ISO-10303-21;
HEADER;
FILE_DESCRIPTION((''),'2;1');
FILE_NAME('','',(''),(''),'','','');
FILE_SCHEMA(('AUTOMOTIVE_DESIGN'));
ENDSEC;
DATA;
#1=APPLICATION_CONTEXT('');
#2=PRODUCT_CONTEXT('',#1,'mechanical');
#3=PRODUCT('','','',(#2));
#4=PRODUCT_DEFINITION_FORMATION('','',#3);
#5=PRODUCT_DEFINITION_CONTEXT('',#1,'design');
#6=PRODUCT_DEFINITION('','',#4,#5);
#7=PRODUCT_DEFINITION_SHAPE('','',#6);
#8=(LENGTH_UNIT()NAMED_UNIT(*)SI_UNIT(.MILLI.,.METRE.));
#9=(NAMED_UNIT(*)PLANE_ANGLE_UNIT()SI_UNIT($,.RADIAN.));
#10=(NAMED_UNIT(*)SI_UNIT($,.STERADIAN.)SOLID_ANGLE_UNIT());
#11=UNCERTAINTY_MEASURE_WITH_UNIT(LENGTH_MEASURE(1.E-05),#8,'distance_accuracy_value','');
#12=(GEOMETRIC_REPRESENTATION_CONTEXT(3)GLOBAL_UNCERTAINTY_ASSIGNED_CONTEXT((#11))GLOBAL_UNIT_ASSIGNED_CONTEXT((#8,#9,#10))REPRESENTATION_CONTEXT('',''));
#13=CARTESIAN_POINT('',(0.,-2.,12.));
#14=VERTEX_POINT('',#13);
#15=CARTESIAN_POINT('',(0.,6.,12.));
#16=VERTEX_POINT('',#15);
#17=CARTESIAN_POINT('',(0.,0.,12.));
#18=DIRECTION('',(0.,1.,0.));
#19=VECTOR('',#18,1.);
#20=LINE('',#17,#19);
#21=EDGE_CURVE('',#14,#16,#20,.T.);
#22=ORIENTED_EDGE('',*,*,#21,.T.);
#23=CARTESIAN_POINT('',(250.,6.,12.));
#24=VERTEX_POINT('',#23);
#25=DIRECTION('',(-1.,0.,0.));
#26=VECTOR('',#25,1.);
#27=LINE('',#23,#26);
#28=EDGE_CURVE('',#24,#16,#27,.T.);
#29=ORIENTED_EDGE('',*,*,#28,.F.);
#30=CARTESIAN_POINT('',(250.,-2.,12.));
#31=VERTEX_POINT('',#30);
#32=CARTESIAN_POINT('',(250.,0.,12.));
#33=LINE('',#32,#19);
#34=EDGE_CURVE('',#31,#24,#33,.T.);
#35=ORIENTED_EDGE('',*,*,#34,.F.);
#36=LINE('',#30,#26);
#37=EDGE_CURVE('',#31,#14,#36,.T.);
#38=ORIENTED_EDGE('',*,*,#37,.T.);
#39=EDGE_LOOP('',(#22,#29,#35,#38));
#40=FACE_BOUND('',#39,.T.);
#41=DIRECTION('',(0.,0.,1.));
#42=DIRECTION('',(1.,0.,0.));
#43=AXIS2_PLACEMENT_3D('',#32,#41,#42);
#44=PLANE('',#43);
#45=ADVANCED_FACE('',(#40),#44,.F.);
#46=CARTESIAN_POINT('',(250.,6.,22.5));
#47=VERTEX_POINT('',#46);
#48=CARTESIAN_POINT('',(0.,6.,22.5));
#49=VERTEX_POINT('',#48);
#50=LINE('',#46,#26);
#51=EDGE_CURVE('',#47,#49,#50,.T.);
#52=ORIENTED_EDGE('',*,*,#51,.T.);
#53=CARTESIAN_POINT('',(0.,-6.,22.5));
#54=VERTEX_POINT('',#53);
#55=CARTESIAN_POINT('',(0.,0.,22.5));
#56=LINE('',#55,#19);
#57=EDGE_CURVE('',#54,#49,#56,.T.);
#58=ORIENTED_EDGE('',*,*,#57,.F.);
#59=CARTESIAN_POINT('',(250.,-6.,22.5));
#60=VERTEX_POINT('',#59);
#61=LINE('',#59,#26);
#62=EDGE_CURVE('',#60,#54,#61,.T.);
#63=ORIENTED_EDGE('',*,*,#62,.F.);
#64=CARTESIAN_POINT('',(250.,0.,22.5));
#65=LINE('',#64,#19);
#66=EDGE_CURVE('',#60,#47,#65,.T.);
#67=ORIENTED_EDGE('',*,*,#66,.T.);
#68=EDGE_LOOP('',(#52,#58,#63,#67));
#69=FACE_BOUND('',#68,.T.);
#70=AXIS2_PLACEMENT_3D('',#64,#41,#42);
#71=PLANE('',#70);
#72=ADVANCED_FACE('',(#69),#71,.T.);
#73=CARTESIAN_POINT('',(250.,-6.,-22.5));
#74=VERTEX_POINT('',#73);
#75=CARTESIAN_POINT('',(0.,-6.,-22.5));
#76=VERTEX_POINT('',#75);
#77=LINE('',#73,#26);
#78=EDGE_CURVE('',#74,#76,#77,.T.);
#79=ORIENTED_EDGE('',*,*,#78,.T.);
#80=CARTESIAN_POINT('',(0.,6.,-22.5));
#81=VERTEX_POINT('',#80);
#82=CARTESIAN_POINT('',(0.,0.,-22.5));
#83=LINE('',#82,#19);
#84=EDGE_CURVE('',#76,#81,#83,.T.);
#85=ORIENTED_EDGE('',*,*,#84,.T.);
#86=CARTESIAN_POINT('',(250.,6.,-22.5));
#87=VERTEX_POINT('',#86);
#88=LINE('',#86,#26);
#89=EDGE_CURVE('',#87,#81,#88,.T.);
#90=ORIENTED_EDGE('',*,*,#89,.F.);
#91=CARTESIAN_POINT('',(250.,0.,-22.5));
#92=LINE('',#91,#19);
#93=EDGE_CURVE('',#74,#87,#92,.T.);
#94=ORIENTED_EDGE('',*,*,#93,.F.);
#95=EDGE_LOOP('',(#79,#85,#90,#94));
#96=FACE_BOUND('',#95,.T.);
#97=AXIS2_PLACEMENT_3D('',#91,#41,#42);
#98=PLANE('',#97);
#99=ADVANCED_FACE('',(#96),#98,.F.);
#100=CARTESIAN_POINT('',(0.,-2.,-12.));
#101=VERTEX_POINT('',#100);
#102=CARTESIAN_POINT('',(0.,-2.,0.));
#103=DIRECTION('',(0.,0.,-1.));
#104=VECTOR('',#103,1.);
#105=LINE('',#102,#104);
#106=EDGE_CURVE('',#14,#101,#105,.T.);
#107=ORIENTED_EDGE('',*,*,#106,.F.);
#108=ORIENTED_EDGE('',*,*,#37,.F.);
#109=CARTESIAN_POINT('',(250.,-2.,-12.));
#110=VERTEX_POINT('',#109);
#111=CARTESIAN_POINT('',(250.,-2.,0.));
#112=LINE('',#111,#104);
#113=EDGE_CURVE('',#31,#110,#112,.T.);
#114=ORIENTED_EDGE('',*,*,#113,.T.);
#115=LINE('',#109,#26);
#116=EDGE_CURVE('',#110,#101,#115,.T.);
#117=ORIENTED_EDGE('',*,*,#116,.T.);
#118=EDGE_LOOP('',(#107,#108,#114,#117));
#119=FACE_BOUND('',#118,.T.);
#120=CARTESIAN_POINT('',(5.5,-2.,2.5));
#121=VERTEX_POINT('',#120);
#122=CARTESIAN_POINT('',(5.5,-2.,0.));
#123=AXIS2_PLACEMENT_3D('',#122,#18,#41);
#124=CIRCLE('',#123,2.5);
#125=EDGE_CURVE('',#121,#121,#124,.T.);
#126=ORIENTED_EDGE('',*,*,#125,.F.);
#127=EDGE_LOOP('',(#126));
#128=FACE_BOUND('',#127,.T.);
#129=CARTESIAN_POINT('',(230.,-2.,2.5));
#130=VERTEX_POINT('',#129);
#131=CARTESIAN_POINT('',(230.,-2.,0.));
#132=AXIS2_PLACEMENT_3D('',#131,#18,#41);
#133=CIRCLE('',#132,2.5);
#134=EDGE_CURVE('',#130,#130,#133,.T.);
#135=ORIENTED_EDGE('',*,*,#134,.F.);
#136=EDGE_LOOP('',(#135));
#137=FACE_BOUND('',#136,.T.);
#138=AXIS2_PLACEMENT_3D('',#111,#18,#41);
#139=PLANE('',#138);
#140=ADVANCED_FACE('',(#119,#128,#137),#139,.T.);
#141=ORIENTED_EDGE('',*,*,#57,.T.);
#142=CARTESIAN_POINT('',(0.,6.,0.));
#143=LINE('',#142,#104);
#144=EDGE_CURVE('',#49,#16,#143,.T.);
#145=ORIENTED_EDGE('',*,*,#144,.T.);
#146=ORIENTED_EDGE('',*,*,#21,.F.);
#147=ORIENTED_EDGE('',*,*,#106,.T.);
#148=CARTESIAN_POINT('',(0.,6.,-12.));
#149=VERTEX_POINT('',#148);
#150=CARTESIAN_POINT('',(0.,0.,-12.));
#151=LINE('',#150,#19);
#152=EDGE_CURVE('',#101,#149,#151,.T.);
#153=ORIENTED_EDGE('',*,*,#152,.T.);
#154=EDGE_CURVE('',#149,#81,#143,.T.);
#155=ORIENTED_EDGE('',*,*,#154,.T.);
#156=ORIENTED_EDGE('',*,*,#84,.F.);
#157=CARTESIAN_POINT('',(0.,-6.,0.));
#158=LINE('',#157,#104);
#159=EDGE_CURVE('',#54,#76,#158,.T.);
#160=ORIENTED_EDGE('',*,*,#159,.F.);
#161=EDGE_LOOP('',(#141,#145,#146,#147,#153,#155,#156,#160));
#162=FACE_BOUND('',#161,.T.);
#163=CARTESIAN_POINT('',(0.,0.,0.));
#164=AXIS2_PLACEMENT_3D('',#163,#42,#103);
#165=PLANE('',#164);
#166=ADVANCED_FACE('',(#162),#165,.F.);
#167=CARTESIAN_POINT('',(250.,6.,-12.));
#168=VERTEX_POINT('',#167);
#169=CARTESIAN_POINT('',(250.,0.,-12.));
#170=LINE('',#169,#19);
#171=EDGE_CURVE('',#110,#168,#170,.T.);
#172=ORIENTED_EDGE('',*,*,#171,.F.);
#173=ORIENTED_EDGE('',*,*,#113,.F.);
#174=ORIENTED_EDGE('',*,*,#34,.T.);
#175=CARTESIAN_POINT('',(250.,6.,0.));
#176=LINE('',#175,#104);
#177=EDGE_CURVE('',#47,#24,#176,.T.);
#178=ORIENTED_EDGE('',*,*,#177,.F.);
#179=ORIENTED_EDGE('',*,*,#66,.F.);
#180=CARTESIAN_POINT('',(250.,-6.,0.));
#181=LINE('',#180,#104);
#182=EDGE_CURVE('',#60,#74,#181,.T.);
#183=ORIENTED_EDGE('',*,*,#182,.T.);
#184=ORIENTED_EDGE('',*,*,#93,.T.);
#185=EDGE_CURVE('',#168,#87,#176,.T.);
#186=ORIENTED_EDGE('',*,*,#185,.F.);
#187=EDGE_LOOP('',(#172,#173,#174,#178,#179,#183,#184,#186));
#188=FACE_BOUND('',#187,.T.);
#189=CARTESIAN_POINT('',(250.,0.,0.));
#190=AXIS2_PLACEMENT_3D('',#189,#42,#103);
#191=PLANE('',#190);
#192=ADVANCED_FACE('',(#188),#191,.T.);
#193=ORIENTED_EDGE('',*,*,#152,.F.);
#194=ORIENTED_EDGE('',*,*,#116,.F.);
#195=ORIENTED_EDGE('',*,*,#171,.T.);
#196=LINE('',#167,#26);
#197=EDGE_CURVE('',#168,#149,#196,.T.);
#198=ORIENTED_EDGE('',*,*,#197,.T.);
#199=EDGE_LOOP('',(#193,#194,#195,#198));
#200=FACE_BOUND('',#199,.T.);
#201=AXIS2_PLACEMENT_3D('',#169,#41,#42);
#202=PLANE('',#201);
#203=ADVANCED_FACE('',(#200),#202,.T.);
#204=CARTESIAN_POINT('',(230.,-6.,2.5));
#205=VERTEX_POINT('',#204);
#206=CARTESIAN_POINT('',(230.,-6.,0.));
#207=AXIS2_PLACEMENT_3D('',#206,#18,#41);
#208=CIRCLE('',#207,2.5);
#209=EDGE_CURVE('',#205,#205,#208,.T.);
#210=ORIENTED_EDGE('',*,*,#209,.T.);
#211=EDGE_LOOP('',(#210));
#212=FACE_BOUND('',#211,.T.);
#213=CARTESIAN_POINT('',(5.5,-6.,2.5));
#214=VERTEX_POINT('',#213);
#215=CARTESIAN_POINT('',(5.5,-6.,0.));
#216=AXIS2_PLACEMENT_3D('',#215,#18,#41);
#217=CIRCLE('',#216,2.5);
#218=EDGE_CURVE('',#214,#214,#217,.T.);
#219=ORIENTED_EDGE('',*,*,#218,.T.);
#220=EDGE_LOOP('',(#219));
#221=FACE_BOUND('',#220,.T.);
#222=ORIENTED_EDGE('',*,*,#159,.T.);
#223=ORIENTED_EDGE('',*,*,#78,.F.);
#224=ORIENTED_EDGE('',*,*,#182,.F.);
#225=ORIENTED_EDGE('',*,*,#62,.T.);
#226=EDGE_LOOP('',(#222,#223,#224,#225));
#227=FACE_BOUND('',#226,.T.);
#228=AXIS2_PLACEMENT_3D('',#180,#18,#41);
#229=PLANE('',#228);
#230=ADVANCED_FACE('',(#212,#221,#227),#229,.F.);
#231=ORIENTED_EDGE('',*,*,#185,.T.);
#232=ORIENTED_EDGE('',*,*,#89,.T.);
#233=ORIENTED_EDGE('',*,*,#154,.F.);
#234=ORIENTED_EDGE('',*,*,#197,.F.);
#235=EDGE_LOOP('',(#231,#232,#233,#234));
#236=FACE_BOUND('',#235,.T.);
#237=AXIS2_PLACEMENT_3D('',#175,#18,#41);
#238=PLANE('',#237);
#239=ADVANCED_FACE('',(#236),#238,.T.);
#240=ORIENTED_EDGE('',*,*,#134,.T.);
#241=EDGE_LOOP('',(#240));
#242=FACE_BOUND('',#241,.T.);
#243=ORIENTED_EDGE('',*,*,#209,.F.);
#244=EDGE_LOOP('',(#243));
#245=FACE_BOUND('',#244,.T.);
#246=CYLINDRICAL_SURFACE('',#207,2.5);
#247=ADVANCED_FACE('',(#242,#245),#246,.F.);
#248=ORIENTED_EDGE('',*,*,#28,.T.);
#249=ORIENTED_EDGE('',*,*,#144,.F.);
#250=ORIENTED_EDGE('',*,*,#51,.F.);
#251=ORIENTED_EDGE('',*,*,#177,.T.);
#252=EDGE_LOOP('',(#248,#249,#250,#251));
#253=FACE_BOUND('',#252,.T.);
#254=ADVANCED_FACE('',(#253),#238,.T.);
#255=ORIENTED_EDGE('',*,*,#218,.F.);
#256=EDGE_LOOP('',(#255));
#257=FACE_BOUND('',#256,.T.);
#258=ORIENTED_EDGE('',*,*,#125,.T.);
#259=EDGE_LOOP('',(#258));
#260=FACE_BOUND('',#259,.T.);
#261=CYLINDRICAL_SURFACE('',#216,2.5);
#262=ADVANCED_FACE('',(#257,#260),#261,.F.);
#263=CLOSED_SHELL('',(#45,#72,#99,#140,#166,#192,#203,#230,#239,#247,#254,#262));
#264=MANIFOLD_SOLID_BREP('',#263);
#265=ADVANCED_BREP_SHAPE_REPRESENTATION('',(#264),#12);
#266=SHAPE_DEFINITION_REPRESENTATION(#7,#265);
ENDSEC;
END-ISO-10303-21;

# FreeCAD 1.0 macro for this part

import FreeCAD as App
import Part
import Sketcher
from FreeCAD import Vector


def add_polygon(sketch, points):
    """Adds a closed chain of lines whose ends are joined by coincident constraints."""
    first, n = sketch.GeometryCount, len(points)
    for a, b in zip(points, points[1:] + points[:1]):
        sketch.addGeometry(Part.LineSegment(App.Vector(*a, 0), App.Vector(*b, 0)), False)
    for i in range(n):
        sketch.addConstraint(Sketcher.Constraint("Coincident", first + i, 2, first + (i + 1) % n, 1))

doc = App.newDocument("Part")
params = doc.addObject("Spreadsheet::Sheet", "Params")
for row, (alias, value) in enumerate([
    ("sketch1_width", "12 mm"),
    ("sketch1_width2", "8 mm"),
    ("sketch1_height", "45 mm"),
    ("sketch1_height2", "24 mm"),
    ("pad1_length", "250 mm"),
    ("sketch2_diameter", "5 mm"),
], start=1):
    params.set(f"A{row}", alias)
    params.set(f"B{row}", "=" + value)
    params.setAlias(f"B{row}", alias)

body = doc.addObject("PartDesign::Body", "Body")

sketch1 = body.newObject("Sketcher::SketchObject", "Sketch")
sketch1.AttachmentSupport = (doc.getObject("YZ_Plane"), [""])
sketch1.MapMode = "FlatFace"
add_polygon(sketch1, [(6, 22), (-6, 22), (-6, -22), (6, -22), (6, -12), (-2, -12), (-2, 12), (6, 12)])
sketch1.addConstraint(Sketcher.Constraint("Horizontal", 0))
sketch1.addConstraint(Sketcher.Constraint("Vertical", 1))
sketch1.addConstraint(Sketcher.Constraint("Horizontal", 2))
sketch1.addConstraint(Sketcher.Constraint("Vertical", 3))
sketch1.addConstraint(Sketcher.Constraint("Horizontal", 4))
sketch1.addConstraint(Sketcher.Constraint("Vertical", 5))
sketch1.addConstraint(Sketcher.Constraint("Horizontal", 6))
sketch1.addConstraint(Sketcher.Constraint("Vertical", 7))
sketch1.addConstraint(Sketcher.Constraint("Symmetric", 0, 2, 2, 2, -1, 1))
sketch1.addConstraint(Sketcher.Constraint("Symmetric", 3, 2, 6, 2, -1))
sketch1.addConstraint(Sketcher.Constraint("DistanceX", 0, 2, 0, 1, 12.0))
sketch1.addConstraint(Sketcher.Constraint("DistanceX", 4, 2, 4, 1, 8.0))
sketch1.addConstraint(Sketcher.Constraint("DistanceY", 1, 2, 1, 1, 45.0))
sketch1.addConstraint(Sketcher.Constraint("DistanceY", 5, 1, 5, 2, 24.0))
sketch1.setExpression("Constraints[18]", "Params.sketch1_width")
sketch1.setExpression("Constraints[19]", "Params.sketch1_width2")
sketch1.setExpression("Constraints[20]", "Params.sketch1_height")
sketch1.setExpression("Constraints[21]", "Params.sketch1_height2")
pad1 = body.newObject("PartDesign::Pad", "Pad")
pad1.Profile = sketch1
pad1.setExpression("Length", "Params.pad1_length")

sketch2 = body.newObject("Sketcher::SketchObject", "Sketch001")
sketch2.AttachmentSupport = (doc.getObject("XZ_Plane"), [""])
sketch2.MapMode = "FlatFace"
sketch2.addGeometry(Part.Circle(Vector(230, 0, 0), Vector(0, 0, 1), 2.5), False)
sketch2.addGeometry(Part.Circle(Vector(5.5, 0, 0), Vector(0, 0, 1), 2.5), False)
sketch2.addConstraint(Sketcher.Constraint("Equal", 0, 1))
sketch2.addConstraint(Sketcher.Constraint("PointOnObject", 0, 3, -1))
sketch2.addConstraint(Sketcher.Constraint("PointOnObject", 1, 3, -1))
sketch2.addConstraint(Sketcher.Constraint("Diameter", 0, 5.0))
sketch2.addConstraint(Sketcher.Constraint("DistanceX", -1, 1, 0, 3, 230.0))
sketch2.addConstraint(Sketcher.Constraint("DistanceX", -1, 1, 1, 3, 5.5))
sketch2.setExpression("Constraints[3]", "Params.sketch2_diameter")
pocket1 = body.newObject("PartDesign::Pocket", "Pocket")
pocket1.Profile = sketch2
pocket1.Type = "ThroughAll"
pocket1.Reversed = True

doc.recompute()
